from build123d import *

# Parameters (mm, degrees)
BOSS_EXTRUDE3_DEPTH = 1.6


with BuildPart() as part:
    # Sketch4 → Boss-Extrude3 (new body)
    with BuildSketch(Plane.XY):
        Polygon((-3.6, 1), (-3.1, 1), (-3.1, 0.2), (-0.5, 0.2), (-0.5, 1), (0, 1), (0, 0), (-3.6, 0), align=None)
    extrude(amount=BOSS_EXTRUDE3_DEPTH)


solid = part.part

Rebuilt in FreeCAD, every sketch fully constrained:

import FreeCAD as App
import Part
import Sketcher

V = App.Vector

doc = App.newDocument("Part")
body = doc.addObject("PartDesign::Body", "Body")

sketch1 = body.newObject("Sketcher::SketchObject", "Sketch")
sketch1.AttachmentSupport = (doc.getObject("XY_Plane"), [""])
sketch1.MapMode = "FlatFace"
sketch1.addGeometry([
    Part.LineSegment(V(-3.1, 1, 0), V(-3.6, 1, 0)),
    Part.LineSegment(V(-3.6, 1, 0), V(-3.6, 0, 0)),
    Part.LineSegment(V(-3.6, 0, 0), V(0, 0, 0)),
    Part.LineSegment(V(0, 0, 0), V(0, 1, 0)),
    Part.LineSegment(V(0, 1, 0), V(-0.5, 1, 0)),
    Part.LineSegment(V(-0.5, 1, 0), V(-0.5, 0.2, 0)),
    Part.LineSegment(V(-0.5, 0.2, 0), V(-3.1, 0.2, 0)),
    Part.LineSegment(V(-3.1, 0.2, 0), V(-3.1, 1, 0)),
], False)
sketch1.addConstraint([
    Sketcher.Constraint("Coincident", 0, 2, 1, 1),
    Sketcher.Constraint("Coincident", 1, 2, 2, 1),
    Sketcher.Constraint("Coincident", 2, 2, 3, 1),
    Sketcher.Constraint("Coincident", 3, 2, 4, 1),
    Sketcher.Constraint("Coincident", 4, 2, 5, 1),
    Sketcher.Constraint("Coincident", 5, 2, 6, 1),
    Sketcher.Constraint("Coincident", 6, 2, 7, 1),
    Sketcher.Constraint("Coincident", 7, 2, 0, 1),
    Sketcher.Constraint("Horizontal", 0),
    Sketcher.Constraint("Vertical", 1),
    Sketcher.Constraint("Horizontal", 2),
    Sketcher.Constraint("Vertical", 3),
    Sketcher.Constraint("Horizontal", 4),
    Sketcher.Constraint("Vertical", 5),
    Sketcher.Constraint("Horizontal", 6),
    Sketcher.Constraint("Vertical", 7),
    Sketcher.Constraint("Coincident", 2, 2, -1, 1),
    Sketcher.Constraint("Horizontal", 0, 2, 3, 2),
    Sketcher.Constraint("Equal", 0, 4),
    Sketcher.Constraint("DistanceY", 1, 2, 1, 1, 1.0),
    Sketcher.Constraint("DistanceX", 0, 2, 0, 1, 0.5),
    Sketcher.Constraint("DistanceX", 2, 1, 2, 2, 3.6),
    Sketcher.Constraint("DistanceY", 5, 2, 5, 1, 0.8),
])
pad1 = body.newObject("PartDesign::Pad", "Pad")
pad1.Profile = sketch1
pad1.Length = 1.6

doc.recompute()
